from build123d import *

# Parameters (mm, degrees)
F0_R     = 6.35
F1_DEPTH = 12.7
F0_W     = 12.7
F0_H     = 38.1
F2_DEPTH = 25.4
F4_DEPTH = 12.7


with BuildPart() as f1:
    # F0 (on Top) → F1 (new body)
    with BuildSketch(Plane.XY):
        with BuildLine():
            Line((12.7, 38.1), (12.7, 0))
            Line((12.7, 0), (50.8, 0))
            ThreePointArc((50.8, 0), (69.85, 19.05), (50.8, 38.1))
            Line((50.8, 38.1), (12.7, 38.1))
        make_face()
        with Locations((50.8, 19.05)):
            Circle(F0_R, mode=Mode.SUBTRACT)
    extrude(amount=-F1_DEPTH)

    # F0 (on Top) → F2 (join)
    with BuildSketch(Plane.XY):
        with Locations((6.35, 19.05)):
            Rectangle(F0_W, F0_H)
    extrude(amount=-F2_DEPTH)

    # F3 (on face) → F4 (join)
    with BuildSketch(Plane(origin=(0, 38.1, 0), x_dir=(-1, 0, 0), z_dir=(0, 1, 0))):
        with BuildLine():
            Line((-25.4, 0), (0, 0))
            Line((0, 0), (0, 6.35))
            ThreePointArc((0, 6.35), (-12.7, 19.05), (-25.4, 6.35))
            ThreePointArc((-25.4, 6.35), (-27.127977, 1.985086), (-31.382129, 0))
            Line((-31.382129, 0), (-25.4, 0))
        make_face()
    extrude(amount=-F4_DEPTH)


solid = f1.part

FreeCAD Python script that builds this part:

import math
import FreeCAD as App
import Part
import Sketcher

V = App.Vector
Q = App.Units.Quantity


def add_polygon(sketch, points):
    """Adds a closed chain of lines whose ends are joined by coincident constraints."""
    first, n = sketch.GeometryCount, len(points)
    for a, b in zip(points, points[1:] + points[:1]):
        sketch.addGeometry(Part.LineSegment(App.Vector(*a, 0), App.Vector(*b, 0)), False)
    for i in range(n):
        sketch.addConstraint(Sketcher.Constraint("Coincident", first + i, 2, first + (i + 1) % n, 1))

doc = App.newDocument("Part")
body = doc.addObject("PartDesign::Body", "Body")

# Sketch on XY plane
sketch1 = body.newObject("Sketcher::SketchObject", "Sketch")
sketch1.AttachmentSupport = (doc.getObject("XY_Plane"), [""])
sketch1.MapMode = "FlatFace"
sketch1.addGeometry(Part.LineSegment(V(12.7, 38.1, 0), V(12.7, 0, 0)), False)
sketch1.addGeometry(Part.LineSegment(V(12.7, 0, 0), V(50.8, 0, 0)), False)
sketch1.addGeometry(Part.ArcOfCircle(Part.Circle(V(50.8, 19.05, 0), V(0, 0, 1), 19.05), math.radians(-90), math.radians(90)), False)
sketch1.addGeometry(Part.LineSegment(V(50.8, 38.1, 0), V(12.7, 38.1, 0)), False)
sketch1.addGeometry(Part.Circle(V(50.8, 19.05, 0), V(0, 0, 1), 6.35), False)
sketch1.addConstraint(Sketcher.Constraint("Coincident", 0, 2, 1, 1))
sketch1.addConstraint(Sketcher.Constraint("Tangent", 1, 2, 2, 1))
sketch1.addConstraint(Sketcher.Constraint("Tangent", 2, 2, 3, 1))
sketch1.addConstraint(Sketcher.Constraint("Coincident", 3, 2, 0, 1))
sketch1.addConstraint(Sketcher.Constraint("Vertical", 0))
sketch1.addConstraint(Sketcher.Constraint("Horizontal", 1))
sketch1.addConstraint(Sketcher.Constraint("Horizontal", 3))
sketch1.addConstraint(Sketcher.Constraint("Coincident", 4, 3, 2, 3))
sketch1.addConstraint(Sketcher.Constraint("PointOnObject", 0, 2, -1))
sketch1.addConstraint(Sketcher.Constraint("Equal", 3, 0))
sketch1.addConstraint(Sketcher.Constraint("Diameter", 4, Q("0.5 in")))
sketch1.addConstraint(Sketcher.Constraint("Radius", 2, Q("0.75 in")))
sketch1.addConstraint(Sketcher.Constraint("DistanceX", -1, 1, 2, 3, Q("2 in")))
pad1 = body.newObject("PartDesign::Pad", "Pad")
pad1.Profile = sketch1
pad1.Length = Q("0.5 in")
pad1.Reversed = True

# Sketch on XY plane
sketch2 = body.newObject("Sketcher::SketchObject", "Sketch001")
sketch2.AttachmentSupport = (doc.getObject("XY_Plane"), [""])
sketch2.MapMode = "FlatFace"
add_polygon(sketch2, [(0, 38.1), (0, 0), (12.7, 0), (12.7, 38.1)])  # lines 0-3
sketch2.addConstraint(Sketcher.Constraint("Vertical", 0))
sketch2.addConstraint(Sketcher.Constraint("Horizontal", 1))
sketch2.addConstraint(Sketcher.Constraint("Vertical", 2))
sketch2.addConstraint(Sketcher.Constraint("Horizontal", 3))
sketch2.addConstraint(Sketcher.Constraint("Coincident", 0, 2, -1, 1))
sketch2.addConstraint(Sketcher.Constraint("DistanceX", 1, 1, 1, 2, Q("0.5 in")))
sketch2.addConstraint(Sketcher.Constraint("DistanceY", 0, 2, 0, 1, Q("1.5 in")))
pad2 = body.newObject("PartDesign::Pad", "Pad001")
pad2.Profile = sketch2
pad2.Length = Q("1 in")
pad2.Reversed = True

# Sketch on XZ plane
sketch3 = body.newObject("Sketcher::SketchObject", "Sketch002")
sketch3.AttachmentSupport = (doc.getObject("XZ_Plane"), [""])
sketch3.MapMode = "FlatFace"
sketch3.AttachmentOffset = App.Placement(V(0, 0, -1.5 * 25.4), App.Rotation())
sketch3.addGeometry(Part.LineSegment(V(0, 0, 0), V(0, 6.35, 0)), False)
sketch3.addGeometry(Part.ArcOfCircle(Part.Circle(V(12.7, 6.35, 0), V(0, 0, 1), 12.7), math.radians(0), math.radians(180)), False)
sketch3.addGeometry(Part.ArcOfCircle(Part.Circle(V(31.74999, 6.339335, 0), V(0, 0, 1), 6.349999), math.radians(179.903769), math.radians(266.678945)), False)
sketch3.addGeometry(Part.LineSegment(V(31.382129, 0, 0), V(0, 0, 0)), False)
sketch3.addConstraint(Sketcher.Constraint("Tangent", 0, 2, 1, 2))
sketch3.addConstraint(Sketcher.Constraint("Coincident", 1, 1, 2, 1))
sketch3.addConstraint(Sketcher.Constraint("Coincident", 2, 2, 3, 1))
sketch3.addConstraint(Sketcher.Constraint("Coincident", 3, 2, 0, 1))
sketch3.addConstraint(Sketcher.Constraint("Vertical", 0))
sketch3.addConstraint(Sketcher.Constraint("Horizontal", 3))
sketch3.addConstraint(Sketcher.Constraint("Coincident", 3, 2, -1, 1))
sketch3.addConstraint(Sketcher.Constraint("Horizontal", 0, 2, 1, 1))
sketch3.addConstraint(Sketcher.Constraint("Radius", 1, Q("0.5 in")))
sketch3.addConstraint(Sketcher.Constraint("Radius", 2, Q("0.25 in")))
sketch3.addConstraint(Sketcher.Constraint("DistanceY", 0, 1, 0, 2, Q("0.25 in")))
sketch3.addConstraint(Sketcher.Constraint("DistanceX", 3, 2, 3, 1, Q("31.382129 mm")))
pad3 = body.newObject("PartDesign::Pad", "Pad002")
pad3.Profile = sketch3
pad3.Length = Q("0.5 in")

doc.recompute()
